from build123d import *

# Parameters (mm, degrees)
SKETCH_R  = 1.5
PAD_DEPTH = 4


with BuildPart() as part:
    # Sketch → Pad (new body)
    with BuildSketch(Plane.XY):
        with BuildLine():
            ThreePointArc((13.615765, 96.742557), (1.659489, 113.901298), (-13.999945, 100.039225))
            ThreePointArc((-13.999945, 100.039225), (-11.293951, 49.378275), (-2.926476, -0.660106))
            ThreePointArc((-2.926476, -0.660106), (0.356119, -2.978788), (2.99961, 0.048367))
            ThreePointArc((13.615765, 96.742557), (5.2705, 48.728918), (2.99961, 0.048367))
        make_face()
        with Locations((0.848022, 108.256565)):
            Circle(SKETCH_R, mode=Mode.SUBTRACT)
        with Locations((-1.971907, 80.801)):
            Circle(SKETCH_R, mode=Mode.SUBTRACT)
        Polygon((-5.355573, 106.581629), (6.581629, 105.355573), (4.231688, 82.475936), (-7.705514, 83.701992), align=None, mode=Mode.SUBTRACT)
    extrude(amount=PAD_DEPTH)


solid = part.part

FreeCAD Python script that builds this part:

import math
import FreeCAD as App
import Part
import Sketcher
from FreeCAD import Vector
Q = App.Units.Quantity


def add_polygon(sketch, points):
    """Adds a closed chain of lines whose ends are joined by coincident constraints."""
    first, n = sketch.GeometryCount, len(points)
    for a, b in zip(points, points[1:] + points[:1]):
        sketch.addGeometry(Part.LineSegment(App.Vector(*a, 0), App.Vector(*b, 0)), False)
    for i in range(n):
        sketch.addConstraint(Sketcher.Constraint("Coincident", first + i, 2, first + (i + 1) % n, 1))

doc = App.newDocument("Part")
body = doc.addObject("PartDesign::Body", "Body")

# Sketch on XY plane
sketch1 = doc.addObject("Sketcher::SketchObject", "Sketch")
body.addObject(sketch1)
sketch1.AttachmentSupport = (doc.XY_Plane, [""])
sketch1.MapMode = "FlatFace"
sketch1.addGeometry(Part.ArcOfCircle(Part.Circle(Vector(0, 100, 0), Vector(0, 0, 1), 14), math.radians(-13), math.radians(180)), False)  # 0
sketch1.addGeometry(Part.ArcOfCircle(Part.Circle(Vector(437.9, 98.8, 0), Vector(0, 0, 1), 451.9), math.radians(179.84), math.radians(192.71)), False)  # 1
sketch1.addGeometry(Part.ArcOfCircle(Part.Circle(Vector(0, 0, 0), Vector(0, 0, 1), 3), math.radians(-167), math.radians(1)), False)  # 2
sketch1.addGeometry(Part.ArcOfCircle(Part.Circle(Vector(391.6, 6.3, 0), Vector(0, 0, 1), 388.6), math.radians(166.55), math.radians(180.92)), False)  # 3
sketch1.addGeometry(Part.Circle(Vector(-2, 80.8, 0), Vector(0, 0, 1), 1.5), False)  # 4
add_polygon(sketch1, [(-7.7, 83.7), (-5.4, 106.6), (6.6, 105.4), (4.2, 82.5)])  # lines 5-8
sketch1.addGeometry(Part.Circle(Vector(0.8, 108.3, 0), Vector(0, 0, 1), 1.5), False)  # 9
sketch1.addConstraint([
    Sketcher.Constraint("Coincident", 0, 2, 1, 1),
    Sketcher.Constraint("Tangent", 1, 2, 2, 1),
    Sketcher.Constraint("Tangent", 2, 2, 3, 2),
    Sketcher.Constraint("Coincident", 3, 1, 0, 1),
    Sketcher.Constraint("Coincident", 2, 3, -1, 1),
    Sketcher.Constraint("Equal", 4, 9),
    Sketcher.Constraint("PointOnObject", 0, 3, -2),
    Sketcher.Constraint("Perpendicular", 5, 6),
    Sketcher.Constraint("Perpendicular", 6, 7),
    Sketcher.Constraint("Perpendicular", 7, 8),
    Sketcher.Constraint("Diameter", 4, Q("3 mm")),
    Sketcher.Constraint("Radius", 0, Q("14 mm")),
    Sketcher.Constraint("Radius", 2, Q("3 mm")),
    Sketcher.Constraint("Distance", 5, Q("23 mm")),
    Sketcher.Constraint("Distance", 6, Q("12 mm")),
    Sketcher.Constraint("DistanceY", -1, 1, 0, 3, Q("100 mm")),
    Sketcher.Constraint("DistanceY", -1, 1, 4, 3, Q("80.801 mm")),
    Sketcher.Constraint("Radius", 1, Q("451.901515 mm")),
    Sketcher.Constraint("Radius", 3, Q("388.643634 mm")),
    Sketcher.Constraint("DistanceY", 1, 3, 9, 3, Q("9.4824 mm")),
    Sketcher.Constraint("DistanceX", 5, 2, 6, 2, Q("11.937202 mm")),
    Sketcher.Constraint("DistanceY", -1, 1, 5, 2, Q("106.581629 mm")),
    Sketcher.Constraint("DistanceX", -1, 1, 6, 2, Q("6.581629 mm")),
    Sketcher.Constraint("DistanceX", 4, 3, 9, 3, Q("2.819929 mm")),
    Sketcher.Constraint("DistanceX", 9, 3, 3, 3, Q("390.744709 mm")),
    Sketcher.Constraint("DistanceY", 0, 2, 9, 3, Q("8.21734 mm")),
    Sketcher.Constraint("DistanceY", 3, 1, 9, 3, Q("11.514008 mm")),
])
pad1 = doc.addObject("PartDesign::Pad", "Pad")
body.addObject(pad1)
pad1.Profile = sketch1
pad1.Length = 4

doc.recompute()
